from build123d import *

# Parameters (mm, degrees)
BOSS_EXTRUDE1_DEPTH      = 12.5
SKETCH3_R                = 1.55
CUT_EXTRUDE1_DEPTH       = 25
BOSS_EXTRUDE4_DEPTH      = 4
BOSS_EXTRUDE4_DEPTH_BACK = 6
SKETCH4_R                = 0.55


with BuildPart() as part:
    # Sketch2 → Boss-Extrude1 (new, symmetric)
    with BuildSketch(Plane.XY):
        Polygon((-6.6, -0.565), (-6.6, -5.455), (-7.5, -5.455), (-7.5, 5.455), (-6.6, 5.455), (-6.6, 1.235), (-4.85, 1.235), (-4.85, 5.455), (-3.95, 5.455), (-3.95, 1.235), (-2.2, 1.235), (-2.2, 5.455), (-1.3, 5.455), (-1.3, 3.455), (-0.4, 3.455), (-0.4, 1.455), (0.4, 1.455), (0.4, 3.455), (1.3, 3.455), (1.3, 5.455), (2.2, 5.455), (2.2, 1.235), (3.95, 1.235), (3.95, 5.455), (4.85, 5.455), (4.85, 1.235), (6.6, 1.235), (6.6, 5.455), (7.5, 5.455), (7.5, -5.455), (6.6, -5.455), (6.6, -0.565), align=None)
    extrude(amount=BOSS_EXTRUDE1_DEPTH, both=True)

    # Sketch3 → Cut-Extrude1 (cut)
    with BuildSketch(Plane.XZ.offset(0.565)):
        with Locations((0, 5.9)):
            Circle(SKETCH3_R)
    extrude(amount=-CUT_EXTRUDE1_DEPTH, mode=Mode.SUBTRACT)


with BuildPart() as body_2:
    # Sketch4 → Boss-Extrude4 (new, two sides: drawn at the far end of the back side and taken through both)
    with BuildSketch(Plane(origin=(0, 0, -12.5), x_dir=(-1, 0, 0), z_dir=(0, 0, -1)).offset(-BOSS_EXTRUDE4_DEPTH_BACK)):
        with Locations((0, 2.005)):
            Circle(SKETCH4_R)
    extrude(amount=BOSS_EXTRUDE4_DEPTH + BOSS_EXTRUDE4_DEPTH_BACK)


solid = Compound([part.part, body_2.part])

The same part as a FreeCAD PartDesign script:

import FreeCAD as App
import Part
import Sketcher


def add_polygon(sketch, points):
    """Adds a closed chain of lines whose ends are joined by coincident constraints."""
    first, n = sketch.GeometryCount, len(points)
    for a, b in zip(points, points[1:] + points[:1]):
        sketch.addGeometry(Part.LineSegment(App.Vector(*a, 0), App.Vector(*b, 0)), False)
    for i in range(n):
        sketch.addConstraint(Sketcher.Constraint("Coincident", first + i, 2, first + (i + 1) % n, 1))

doc = App.newDocument("Part")
params = doc.addObject("Spreadsheet::Sheet", "Params")
for row, (alias, value) in enumerate([
    ("sketch1_height", "2 mm"),
    ("sketch1_width", "13.2 mm"),
    ("sketch1_width2", "0.9 mm"),
    ("sketch1_width3", "0.8 mm"),
    ("sketch1_height2", "4.89 mm"),
    ("pad1_length", "25 mm"),
    ("sketch2_diameter", "3.1 mm"),
    ("pocket1_length", "25 mm"),
    ("sketch3_diameter", "1.1 mm"),
    ("pad2_length", "4 mm"),
    ("pad2_length2", "6 mm"),
], start=1):
    params.set(f"A{row}", alias)
    params.set(f"B{row}", "=" + value)
    params.setAlias(f"B{row}", alias)

body = doc.addObject("PartDesign::Body", "Body")

sketch1 = body.newObject("Sketcher::SketchObject", "Sketch")
sketch1.AttachmentSupport = (doc.getObject("XY_Plane"), [""])
sketch1.MapMode = "FlatFace"
add_polygon(sketch1, [(-6.6, -5.455), (-6.6, -0.565), (6.6, -0.565), (6.6, -5.455), (7.5, -5.455), (7.5, 5.455), (6.6, 5.455), (6.6, 1.235), (4.85, 1.235), (4.85, 5.455), (3.95, 5.455), (3.95, 1.235), (2.2, 1.235), (2.2, 5.455), (1.3, 5.455), (1.3, 3.455), (0.4, 3.455), (0.4, 1.455), (-0.4, 1.455), (-0.4, 3.455), (-1.3, 3.455), (-1.3, 5.455), (-2.2, 5.455), (-2.2, 1.235), (-3.95, 1.235), (-3.95, 5.455), (-4.85, 5.455), (-4.85, 1.235), (-6.6, 1.235), (-6.6, 5.455), (-7.5, 5.455), (-7.5, -5.455)])
sketch1.addConstraint([
    Sketcher.Constraint("Vertical", 0),
    Sketcher.Constraint("Horizontal", 1),
    Sketcher.Constraint("Vertical", 2),
    Sketcher.Constraint("Horizontal", 3),
    Sketcher.Constraint("Vertical", 4),
    Sketcher.Constraint("Horizontal", 5),
    Sketcher.Constraint("Vertical", 6),
    Sketcher.Constraint("Horizontal", 7),
    Sketcher.Constraint("Vertical", 8),
    Sketcher.Constraint("Horizontal", 9),
    Sketcher.Constraint("Vertical", 10),
    Sketcher.Constraint("Horizontal", 11),
    Sketcher.Constraint("Vertical", 12),
    Sketcher.Constraint("Horizontal", 13),
    Sketcher.Constraint("Vertical", 14),
    Sketcher.Constraint("Horizontal", 15),
    Sketcher.Constraint("Vertical", 16),
    Sketcher.Constraint("Horizontal", 17),
    Sketcher.Constraint("Vertical", 18),
    Sketcher.Constraint("Horizontal", 19),
    Sketcher.Constraint("Vertical", 20),
    Sketcher.Constraint("Horizontal", 21),
    Sketcher.Constraint("Vertical", 22),
    Sketcher.Constraint("Horizontal", 23),
    Sketcher.Constraint("Vertical", 24),
    Sketcher.Constraint("Horizontal", 25),
    Sketcher.Constraint("Vertical", 26),
    Sketcher.Constraint("Horizontal", 27),
    Sketcher.Constraint("Vertical", 28),
    Sketcher.Constraint("Horizontal", 29),
    Sketcher.Constraint("Vertical", 30),
    Sketcher.Constraint("Horizontal", 31),
    Sketcher.Constraint("Symmetric", 2, 2, 28, 2, -1, 1),
    Sketcher.Constraint("Symmetric", 4, 2, 30, 2, -1, 1),
    Sketcher.Constraint("Symmetric", 15, 2, 18, 2, -2),
    Sketcher.Constraint("Symmetric", 13, 2, 20, 2, -2),
    Sketcher.Constraint("Symmetric", 11, 2, 22, 2, -2),
    Sketcher.Constraint("Symmetric", 9, 2, 24, 2, -2),
    Sketcher.Constraint("Symmetric", 7, 2, 26, 2, -2),
    Sketcher.Constraint("Symmetric", 5, 2, 28, 2, -2),
    Sketcher.Constraint("Horizontal", 5, 2, 8, 2),
    Sketcher.Constraint("Horizontal", 7, 2, 10, 2),
    Sketcher.Constraint("Horizontal", 9, 2, 12, 2),
    Sketcher.Constraint("Vertical", 0, 2, 27, 2),
    Sketcher.Constraint("Equal", 5, 9),
    Sketcher.Constraint("Equal", 7, 11),
    Sketcher.Constraint("Equal", 9, 13),
    Sketcher.Constraint("Equal", 13, 15),
    Sketcher.Constraint("Equal", 14, 16),
    Sketcher.Constraint("DistanceY", 14, 2, 14, 1, 2.0),
    Sketcher.Constraint("DistanceX", 1, 1, 1, 2, 13.2),
    Sketcher.Constraint("DistanceX", 3, 1, 3, 2, 0.9),
    Sketcher.Constraint("DistanceX", 17, 2, 17, 1, 0.8),
    Sketcher.Constraint("DistanceY", 0, 1, 0, 2, 4.89),
    Sketcher.Constraint("DistanceY", 4, 1, 4, 2, 10.91),
    Sketcher.Constraint("DistanceY", 6, 2, 6, 1, 4.22),
])
sketch1.setExpression("Constraints[81]", "Params.sketch1_height")
sketch1.setExpression("Constraints[82]", "Params.sketch1_width")
sketch1.setExpression("Constraints[83]", "Params.sketch1_width2")
sketch1.setExpression("Constraints[84]", "Params.sketch1_width3")
sketch1.setExpression("Constraints[85]", "Params.sketch1_height2")
pad1 = body.newObject("PartDesign::Pad", "Pad")
pad1.Profile = sketch1
pad1.setExpression("Length", "Params.pad1_length")
pad1.Midplane = True

sketch2 = body.newObject("Sketcher::SketchObject", "Sketch001")
sketch2.AttachmentSupport = (doc.getObject("XZ_Plane"), [""])
sketch2.MapMode = "FlatFace"
sketch2.AttachmentOffset = App.Placement(App.Vector(0, 0, 0.565), App.Rotation())
sketch2.addGeometry(Part.Circle(App.Vector(0, 5.9, 0), App.Vector(0, 0, 1), 1.55), False)
sketch2.addConstraint([
    Sketcher.Constraint("PointOnObject", 0, 3, -2),
    Sketcher.Constraint("Diameter", 0, 3.1),
    Sketcher.Constraint("DistanceY", -1, 1, 0, 3, 5.9),
])
sketch2.setExpression("Constraints[1]", "Params.sketch2_diameter")
pocket1 = body.newObject("PartDesign::Pocket", "Pocket")
pocket1.Profile = sketch2
pocket1.setExpression("Length", "Params.pocket1_length")
body2 = doc.addObject("PartDesign::Body", "Body001")

sketch3 = body2.newObject("Sketcher::SketchObject", "Sketch002")
sketch3.AttachmentSupport = (doc.getObject("XY_Plane001"), [""])
sketch3.MapMode = "FlatFace"
sketch3.AttachmentOffset = App.Placement(App.Vector(0, 0, -12.5), App.Rotation())
sketch3.addGeometry(Part.Circle(App.Vector(0, 2.005, 0), App.Vector(0, 0, 1), 0.55), False)
sketch3.addConstraint([
    Sketcher.Constraint("PointOnObject", 0, 3, -2),
    Sketcher.Constraint("Diameter", 0, 1.1),
    Sketcher.Constraint("DistanceY", -1, 1, 0, 3, 2.005),
])
sketch3.setExpression("Constraints[1]", "Params.sketch3_diameter")
pad2 = body2.newObject("PartDesign::Pad", "Pad001")
pad2.Profile = sketch3
pad2.Type = "TwoLengths"
pad2.setExpression("Length", "Params.pad2_length")
pad2.setExpression("Length2", "Params.pad2_length2")
pad2.Reversed = True

doc.recompute()
